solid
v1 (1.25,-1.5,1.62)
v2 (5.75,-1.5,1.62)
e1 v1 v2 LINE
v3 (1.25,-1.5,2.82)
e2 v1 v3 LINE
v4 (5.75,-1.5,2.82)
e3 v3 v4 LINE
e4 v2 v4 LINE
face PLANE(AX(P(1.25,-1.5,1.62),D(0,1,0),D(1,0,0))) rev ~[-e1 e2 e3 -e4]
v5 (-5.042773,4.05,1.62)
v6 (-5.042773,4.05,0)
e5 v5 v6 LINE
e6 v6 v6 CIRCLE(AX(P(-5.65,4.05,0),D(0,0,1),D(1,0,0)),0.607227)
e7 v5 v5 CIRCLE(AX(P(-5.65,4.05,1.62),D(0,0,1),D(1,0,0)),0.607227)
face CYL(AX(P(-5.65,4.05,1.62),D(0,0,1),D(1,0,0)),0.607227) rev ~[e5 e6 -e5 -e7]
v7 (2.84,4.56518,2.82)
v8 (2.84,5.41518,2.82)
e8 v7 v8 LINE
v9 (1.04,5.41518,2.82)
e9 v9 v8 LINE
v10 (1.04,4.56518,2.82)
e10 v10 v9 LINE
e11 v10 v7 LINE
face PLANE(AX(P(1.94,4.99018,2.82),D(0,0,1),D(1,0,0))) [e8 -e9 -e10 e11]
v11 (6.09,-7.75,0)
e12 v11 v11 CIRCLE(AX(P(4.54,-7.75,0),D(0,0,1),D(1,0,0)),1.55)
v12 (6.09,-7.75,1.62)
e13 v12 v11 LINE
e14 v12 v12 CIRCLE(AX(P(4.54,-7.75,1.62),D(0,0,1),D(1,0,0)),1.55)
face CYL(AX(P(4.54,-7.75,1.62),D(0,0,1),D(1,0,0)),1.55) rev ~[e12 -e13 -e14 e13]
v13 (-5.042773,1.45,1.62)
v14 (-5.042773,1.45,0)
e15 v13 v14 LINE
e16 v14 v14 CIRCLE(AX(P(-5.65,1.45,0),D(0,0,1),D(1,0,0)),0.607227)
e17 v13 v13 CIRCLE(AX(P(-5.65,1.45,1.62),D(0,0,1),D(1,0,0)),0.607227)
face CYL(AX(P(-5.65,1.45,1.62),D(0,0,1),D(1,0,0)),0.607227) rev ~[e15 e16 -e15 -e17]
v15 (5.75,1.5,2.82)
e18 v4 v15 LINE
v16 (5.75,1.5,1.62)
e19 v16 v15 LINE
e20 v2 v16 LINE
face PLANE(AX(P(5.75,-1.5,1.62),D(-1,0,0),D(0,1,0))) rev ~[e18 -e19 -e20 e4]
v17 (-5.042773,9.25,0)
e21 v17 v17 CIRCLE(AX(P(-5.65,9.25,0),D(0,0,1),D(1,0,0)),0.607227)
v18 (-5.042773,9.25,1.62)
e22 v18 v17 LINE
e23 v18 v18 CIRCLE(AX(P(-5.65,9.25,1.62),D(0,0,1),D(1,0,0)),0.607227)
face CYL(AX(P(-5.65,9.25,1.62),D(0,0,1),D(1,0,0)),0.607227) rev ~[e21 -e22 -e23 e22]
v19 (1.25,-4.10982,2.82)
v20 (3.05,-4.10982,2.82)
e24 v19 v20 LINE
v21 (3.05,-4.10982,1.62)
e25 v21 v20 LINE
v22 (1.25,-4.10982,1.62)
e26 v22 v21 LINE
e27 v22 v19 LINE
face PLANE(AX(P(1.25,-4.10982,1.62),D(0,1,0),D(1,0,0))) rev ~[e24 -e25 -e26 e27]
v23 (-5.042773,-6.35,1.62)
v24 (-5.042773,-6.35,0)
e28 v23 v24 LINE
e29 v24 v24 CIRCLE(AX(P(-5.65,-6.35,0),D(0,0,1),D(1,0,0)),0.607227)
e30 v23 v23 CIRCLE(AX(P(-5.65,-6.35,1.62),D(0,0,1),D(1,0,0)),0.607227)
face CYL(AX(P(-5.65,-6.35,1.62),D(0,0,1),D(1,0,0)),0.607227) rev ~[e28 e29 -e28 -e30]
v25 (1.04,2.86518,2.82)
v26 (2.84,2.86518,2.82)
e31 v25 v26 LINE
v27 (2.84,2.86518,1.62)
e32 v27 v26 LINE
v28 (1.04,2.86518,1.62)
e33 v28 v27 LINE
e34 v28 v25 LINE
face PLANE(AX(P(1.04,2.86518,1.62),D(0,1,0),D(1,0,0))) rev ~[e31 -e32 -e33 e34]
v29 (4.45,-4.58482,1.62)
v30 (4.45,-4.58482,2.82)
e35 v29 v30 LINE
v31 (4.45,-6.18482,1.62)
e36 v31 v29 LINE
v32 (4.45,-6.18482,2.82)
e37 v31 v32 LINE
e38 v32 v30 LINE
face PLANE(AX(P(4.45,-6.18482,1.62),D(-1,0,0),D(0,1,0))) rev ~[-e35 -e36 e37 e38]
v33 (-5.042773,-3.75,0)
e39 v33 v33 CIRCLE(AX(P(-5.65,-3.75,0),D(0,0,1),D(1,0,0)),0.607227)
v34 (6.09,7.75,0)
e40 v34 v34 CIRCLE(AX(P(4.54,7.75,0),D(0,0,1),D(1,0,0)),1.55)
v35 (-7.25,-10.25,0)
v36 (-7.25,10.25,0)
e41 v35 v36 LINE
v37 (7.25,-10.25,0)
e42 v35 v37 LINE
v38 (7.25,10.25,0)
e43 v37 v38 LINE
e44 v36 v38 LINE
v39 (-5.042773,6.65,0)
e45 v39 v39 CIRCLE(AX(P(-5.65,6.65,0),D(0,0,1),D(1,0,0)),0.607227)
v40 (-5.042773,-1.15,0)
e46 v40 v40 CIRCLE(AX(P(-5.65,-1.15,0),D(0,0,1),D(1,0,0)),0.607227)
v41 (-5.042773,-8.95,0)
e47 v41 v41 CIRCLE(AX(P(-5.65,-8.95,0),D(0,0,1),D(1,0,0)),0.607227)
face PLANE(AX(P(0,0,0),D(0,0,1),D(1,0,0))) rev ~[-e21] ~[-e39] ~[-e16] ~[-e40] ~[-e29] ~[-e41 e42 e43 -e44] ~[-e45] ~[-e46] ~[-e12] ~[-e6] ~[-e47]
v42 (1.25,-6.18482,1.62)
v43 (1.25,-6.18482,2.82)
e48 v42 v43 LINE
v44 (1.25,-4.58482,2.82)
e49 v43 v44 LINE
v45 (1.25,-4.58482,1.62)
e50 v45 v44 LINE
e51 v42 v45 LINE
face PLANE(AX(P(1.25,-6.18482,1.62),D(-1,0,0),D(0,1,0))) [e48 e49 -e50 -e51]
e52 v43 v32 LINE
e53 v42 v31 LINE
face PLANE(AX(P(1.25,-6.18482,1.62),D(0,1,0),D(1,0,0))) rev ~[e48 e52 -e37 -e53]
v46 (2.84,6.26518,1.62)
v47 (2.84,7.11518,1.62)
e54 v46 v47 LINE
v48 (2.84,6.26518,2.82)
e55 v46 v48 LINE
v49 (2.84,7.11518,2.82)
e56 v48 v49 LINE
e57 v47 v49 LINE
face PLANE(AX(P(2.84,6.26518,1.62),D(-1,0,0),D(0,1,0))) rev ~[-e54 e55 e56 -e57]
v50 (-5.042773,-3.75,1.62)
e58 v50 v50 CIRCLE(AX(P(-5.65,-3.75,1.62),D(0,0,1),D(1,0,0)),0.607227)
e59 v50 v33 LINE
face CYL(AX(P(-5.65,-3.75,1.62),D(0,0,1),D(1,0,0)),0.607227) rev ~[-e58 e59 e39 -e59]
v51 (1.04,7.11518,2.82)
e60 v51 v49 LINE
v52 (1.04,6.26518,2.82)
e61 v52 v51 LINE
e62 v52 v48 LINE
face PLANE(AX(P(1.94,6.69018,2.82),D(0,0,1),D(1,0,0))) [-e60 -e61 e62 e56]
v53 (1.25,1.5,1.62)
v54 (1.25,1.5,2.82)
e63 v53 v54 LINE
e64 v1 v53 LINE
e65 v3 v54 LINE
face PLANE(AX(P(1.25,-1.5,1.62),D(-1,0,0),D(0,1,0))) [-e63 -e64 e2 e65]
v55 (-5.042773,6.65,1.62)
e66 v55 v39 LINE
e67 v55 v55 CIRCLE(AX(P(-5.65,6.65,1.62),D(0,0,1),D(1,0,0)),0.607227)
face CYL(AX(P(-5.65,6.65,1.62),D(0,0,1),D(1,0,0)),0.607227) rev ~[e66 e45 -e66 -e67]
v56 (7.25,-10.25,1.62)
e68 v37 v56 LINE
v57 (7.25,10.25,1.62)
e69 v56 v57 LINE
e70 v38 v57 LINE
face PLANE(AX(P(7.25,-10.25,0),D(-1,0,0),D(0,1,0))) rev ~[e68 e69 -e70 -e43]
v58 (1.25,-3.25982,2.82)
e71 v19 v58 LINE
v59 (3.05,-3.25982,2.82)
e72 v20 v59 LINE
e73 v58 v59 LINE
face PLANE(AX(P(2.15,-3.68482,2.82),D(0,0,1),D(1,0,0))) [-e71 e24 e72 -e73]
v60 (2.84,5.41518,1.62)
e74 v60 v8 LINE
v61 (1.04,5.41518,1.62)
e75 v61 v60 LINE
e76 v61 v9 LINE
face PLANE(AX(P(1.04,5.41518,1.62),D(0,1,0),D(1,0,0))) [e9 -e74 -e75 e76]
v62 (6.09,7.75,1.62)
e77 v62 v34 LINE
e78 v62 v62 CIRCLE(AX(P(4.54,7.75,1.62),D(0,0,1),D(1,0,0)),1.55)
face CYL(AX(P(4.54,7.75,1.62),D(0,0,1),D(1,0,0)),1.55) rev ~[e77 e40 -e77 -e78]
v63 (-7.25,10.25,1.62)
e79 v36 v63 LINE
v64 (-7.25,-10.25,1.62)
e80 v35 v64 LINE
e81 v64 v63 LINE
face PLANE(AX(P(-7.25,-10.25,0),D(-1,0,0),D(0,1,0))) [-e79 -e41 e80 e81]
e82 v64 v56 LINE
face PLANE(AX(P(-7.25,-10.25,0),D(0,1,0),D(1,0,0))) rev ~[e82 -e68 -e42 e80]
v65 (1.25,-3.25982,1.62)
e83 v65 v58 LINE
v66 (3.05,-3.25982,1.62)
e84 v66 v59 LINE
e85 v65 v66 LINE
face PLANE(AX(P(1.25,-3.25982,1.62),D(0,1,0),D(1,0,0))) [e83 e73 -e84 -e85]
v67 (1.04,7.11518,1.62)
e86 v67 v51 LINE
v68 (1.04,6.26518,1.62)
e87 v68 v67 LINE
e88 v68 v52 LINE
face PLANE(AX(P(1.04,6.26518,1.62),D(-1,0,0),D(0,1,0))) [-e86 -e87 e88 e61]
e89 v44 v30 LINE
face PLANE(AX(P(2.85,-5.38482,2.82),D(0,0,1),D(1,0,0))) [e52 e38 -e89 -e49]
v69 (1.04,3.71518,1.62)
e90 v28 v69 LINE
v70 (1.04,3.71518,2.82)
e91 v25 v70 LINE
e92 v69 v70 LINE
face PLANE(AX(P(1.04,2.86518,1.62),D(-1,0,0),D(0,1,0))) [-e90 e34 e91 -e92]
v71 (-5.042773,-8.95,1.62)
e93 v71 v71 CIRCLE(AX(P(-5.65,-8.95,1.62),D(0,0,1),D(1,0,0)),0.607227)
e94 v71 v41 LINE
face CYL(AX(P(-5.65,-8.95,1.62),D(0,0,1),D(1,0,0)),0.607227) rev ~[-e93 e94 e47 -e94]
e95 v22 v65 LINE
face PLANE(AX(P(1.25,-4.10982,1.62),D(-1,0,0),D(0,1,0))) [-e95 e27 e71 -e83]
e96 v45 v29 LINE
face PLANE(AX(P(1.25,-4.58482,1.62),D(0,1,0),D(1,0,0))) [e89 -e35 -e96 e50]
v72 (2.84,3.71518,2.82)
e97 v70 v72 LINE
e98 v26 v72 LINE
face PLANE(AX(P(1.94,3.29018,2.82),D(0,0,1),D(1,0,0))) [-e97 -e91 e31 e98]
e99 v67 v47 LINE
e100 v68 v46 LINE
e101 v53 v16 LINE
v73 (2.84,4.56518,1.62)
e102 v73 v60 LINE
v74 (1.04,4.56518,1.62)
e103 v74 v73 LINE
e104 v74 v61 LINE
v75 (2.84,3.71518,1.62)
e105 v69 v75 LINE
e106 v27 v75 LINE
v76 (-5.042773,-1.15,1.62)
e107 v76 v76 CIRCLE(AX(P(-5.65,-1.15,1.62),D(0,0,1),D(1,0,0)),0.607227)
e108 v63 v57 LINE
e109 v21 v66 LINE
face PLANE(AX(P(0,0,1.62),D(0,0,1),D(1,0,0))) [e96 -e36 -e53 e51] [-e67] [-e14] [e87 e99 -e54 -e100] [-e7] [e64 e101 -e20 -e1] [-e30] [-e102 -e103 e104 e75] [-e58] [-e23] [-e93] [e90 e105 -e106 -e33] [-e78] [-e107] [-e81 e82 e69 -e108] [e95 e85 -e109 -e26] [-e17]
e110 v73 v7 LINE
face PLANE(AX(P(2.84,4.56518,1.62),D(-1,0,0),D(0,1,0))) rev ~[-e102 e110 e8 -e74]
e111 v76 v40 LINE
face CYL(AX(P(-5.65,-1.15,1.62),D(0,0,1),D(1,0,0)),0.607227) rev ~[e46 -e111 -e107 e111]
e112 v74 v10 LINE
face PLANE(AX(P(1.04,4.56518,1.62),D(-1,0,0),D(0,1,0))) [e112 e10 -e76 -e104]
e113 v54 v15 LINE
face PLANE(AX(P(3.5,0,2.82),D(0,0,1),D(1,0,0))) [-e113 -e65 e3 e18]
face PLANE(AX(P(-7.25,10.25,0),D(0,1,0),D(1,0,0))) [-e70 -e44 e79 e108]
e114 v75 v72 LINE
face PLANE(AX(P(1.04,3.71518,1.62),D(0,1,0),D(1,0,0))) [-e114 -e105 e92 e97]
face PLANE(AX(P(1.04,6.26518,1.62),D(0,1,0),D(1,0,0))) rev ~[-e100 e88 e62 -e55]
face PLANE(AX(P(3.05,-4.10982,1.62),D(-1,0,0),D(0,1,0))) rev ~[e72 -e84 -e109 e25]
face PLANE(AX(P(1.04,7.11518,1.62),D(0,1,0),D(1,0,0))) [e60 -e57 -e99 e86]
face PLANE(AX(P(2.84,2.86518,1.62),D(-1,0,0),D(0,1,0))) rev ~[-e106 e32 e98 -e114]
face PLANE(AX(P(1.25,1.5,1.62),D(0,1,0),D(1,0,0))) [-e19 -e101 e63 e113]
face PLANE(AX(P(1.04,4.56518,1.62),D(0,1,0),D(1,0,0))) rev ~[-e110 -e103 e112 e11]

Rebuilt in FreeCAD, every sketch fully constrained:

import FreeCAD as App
import Part
import Sketcher
from FreeCAD import Vector

doc = App.newDocument("Part")
body = doc.addObject("PartDesign::Body", "Body")

# Sketch on XY plane
sketch1 = doc.addObject("Sketcher::SketchObject", "Sketch")
body.addObject(sketch1)
sketch1.AttachmentSupport = (doc.XY_Plane, [""])
sketch1.MapMode = "FlatFace"
sketch1.addGeometry(Part.LineSegment(Vector(-7, 10, 0), Vector(-7, -10, 0)), False)
sketch1.addGeometry(Part.LineSegment(Vector(-7, -10, 0), Vector(7, -10, 0)), False)
sketch1.addGeometry(Part.LineSegment(Vector(7, -10, 0), Vector(7, 10, 0)), False)
sketch1.addGeometry(Part.LineSegment(Vector(7, 10, 0), Vector(-7, 10, 0)), False)
sketch1.addConstraint(Sketcher.Constraint("Coincident", 0, 2, 1, 1))
sketch1.addConstraint(Sketcher.Constraint("Coincident", 1, 2, 2, 1))
sketch1.addConstraint(Sketcher.Constraint("Coincident", 2, 2, 3, 1))
sketch1.addConstraint(Sketcher.Constraint("Coincident", 3, 2, 0, 1))
sketch1.addConstraint(Sketcher.Constraint("Vertical", 0))
sketch1.addConstraint(Sketcher.Constraint("Horizontal", 1))
sketch1.addConstraint(Sketcher.Constraint("Vertical", 2))
sketch1.addConstraint(Sketcher.Constraint("Horizontal", 3))
sketch1.addConstraint(Sketcher.Constraint("Symmetric", 0, 2, 2, 2, -1, 1))
sketch1.addConstraint(Sketcher.Constraint("DistanceX", 1, 1, 1, 2, 14.5))
sketch1.addConstraint(Sketcher.Constraint("DistanceY", 0, 2, 0, 1, 20.5))
pad1 = doc.addObject("PartDesign::Pad", "Pad")
body.addObject(pad1)
pad1.Profile = sketch1
pad1.Length = 1.62

# Sketch on XY plane
sketch2 = doc.addObject("Sketcher::SketchObject", "Sketch001")
body.addObject(sketch2)
sketch2.AttachmentSupport = (doc.XY_Plane, [""])
sketch2.MapMode = "FlatFace"
sketch2.AttachmentOffset = App.Placement(Vector(0, 0, 1.62), App.Rotation())
sketch2.addGeometry(Part.Circle(Vector(4.5, 7.8, 0), Vector(0, 0, 1), 1.6), False)
sketch2.addGeometry(Part.Circle(Vector(4.5, -7.8, 0), Vector(0, 0, 1), 1.6), False)
sketch2.addConstraint(Sketcher.Constraint("Equal", 0, 1))
sketch2.addConstraint(Sketcher.Constraint("Symmetric", 0, 3, 1, 3, -1))
sketch2.addConstraint(Sketcher.Constraint("Diameter", 0, 3.1))
sketch2.addConstraint(Sketcher.Constraint("DistanceY", 1, 3, 0, 3, 15.5))
sketch2.addConstraint(Sketcher.Constraint("DistanceX", -1, 1, 0, 3, 4.54))
pocket1 = doc.addObject("PartDesign::Pocket", "Pocket")
body.addObject(pocket1)
pocket1.Profile = sketch2
pocket1.Length = 1.62

# Sketch on XY plane
sketch3 = doc.addObject("Sketcher::SketchObject", "Sketch002")
body.addObject(sketch3)
sketch3.AttachmentSupport = (doc.XY_Plane, [""])
sketch3.MapMode = "FlatFace"
sketch3.AttachmentOffset = App.Placement(Vector(0, 0, 1.62), App.Rotation())
sketch3.addGeometry(Part.LineSegment(Vector(1, 7.1, 0), Vector(1, 6.3, 0)), False)
sketch3.addGeometry(Part.LineSegment(Vector(1, 6.3, 0), Vector(2.8, 6.3, 0)), False)
sketch3.addGeometry(Part.LineSegment(Vector(2.8, 6.3, 0), Vector(2.8, 7.1, 0)), False)
sketch3.addGeometry(Part.LineSegment(Vector(2.8, 7.1, 0), Vector(1, 7.1, 0)), False)
sketch3.addGeometry(Part.LineSegment(Vector(1, 5.4, 0), Vector(1, 4.6, 0)), False)
sketch3.addGeometry(Part.LineSegment(Vector(1, 4.6, 0), Vector(2.8, 4.6, 0)), False)
sketch3.addGeometry(Part.LineSegment(Vector(2.8, 4.6, 0), Vector(2.8, 5.4, 0)), False)
sketch3.addGeometry(Part.LineSegment(Vector(2.8, 5.4, 0), Vector(1, 5.4, 0)), False)
sketch3.addGeometry(Part.LineSegment(Vector(1, 3.7, 0), Vector(1, 2.9, 0)), False)
sketch3.addGeometry(Part.LineSegment(Vector(1, 2.9, 0), Vector(2.8, 2.9, 0)), False)
sketch3.addGeometry(Part.LineSegment(Vector(2.8, 2.9, 0), Vector(2.8, 3.7, 0)), False)
sketch3.addGeometry(Part.LineSegment(Vector(2.8, 3.7, 0), Vector(1, 3.7, 0)), False)
sketch3.addGeometry(Part.LineSegment(Vector(1.2, 1.5, 0), Vector(1.2, -1.5, 0)), False)
sketch3.addGeometry(Part.LineSegment(Vector(1.2, -1.5, 0), Vector(5.8, -1.5, 0)), False)
sketch3.addGeometry(Part.LineSegment(Vector(5.8, -1.5, 0), Vector(5.8, 1.5, 0)), False)
sketch3.addGeometry(Part.LineSegment(Vector(5.8, 1.5, 0), Vector(1.2, 1.5, 0)), False)
sketch3.addGeometry(Part.LineSegment(Vector(1.2, -3.3, 0), Vector(1.2, -4.1, 0)), False)
sketch3.addGeometry(Part.LineSegment(Vector(1.2, -4.1, 0), Vector(3, -4.1, 0)), False)
sketch3.addGeometry(Part.LineSegment(Vector(3, -4.1, 0), Vector(3, -3.3, 0)), False)
sketch3.addGeometry(Part.LineSegment(Vector(3, -3.3, 0), Vector(1.2, -3.3, 0)), False)
sketch3.addGeometry(Part.LineSegment(Vector(1.2, -4.6, 0), Vector(1.2, -6.2, 0)), False)
sketch3.addGeometry(Part.LineSegment(Vector(1.2, -6.2, 0), Vector(4.5, -6.2, 0)), False)
sketch3.addGeometry(Part.LineSegment(Vector(4.5, -6.2, 0), Vector(4.5, -4.6, 0)), False)
sketch3.addGeometry(Part.LineSegment(Vector(4.5, -4.6, 0), Vector(1.2, -4.6, 0)), False)
sketch3.addConstraint(Sketcher.Constraint("Coincident", 0, 2, 1, 1))
sketch3.addConstraint(Sketcher.Constraint("Coincident", 1, 2, 2, 1))
sketch3.addConstraint(Sketcher.Constraint("Coincident", 2, 2, 3, 1))
sketch3.addConstraint(Sketcher.Constraint("Coincident", 3, 2, 0, 1))
sketch3.addConstraint(Sketcher.Constraint("Coincident", 4, 2, 5, 1))
sketch3.addConstraint(Sketcher.Constraint("Coincident", 5, 2, 6, 1))
sketch3.addConstraint(Sketcher.Constraint("Coincident", 6, 2, 7, 1))
sketch3.addConstraint(Sketcher.Constraint("Coincident", 7, 2, 4, 1))
sketch3.addConstraint(Sketcher.Constraint("Coincident", 8, 2, 9, 1))
sketch3.addConstraint(Sketcher.Constraint("Coincident", 9, 2, 10, 1))
sketch3.addConstraint(Sketcher.Constraint("Coincident", 10, 2, 11, 1))
sketch3.addConstraint(Sketcher.Constraint("Coincident", 11, 2, 8, 1))
sketch3.addConstraint(Sketcher.Constraint("Coincident", 12, 2, 13, 1))
sketch3.addConstraint(Sketcher.Constraint("Coincident", 13, 2, 14, 1))
sketch3.addConstraint(Sketcher.Constraint("Coincident", 14, 2, 15, 1))
sketch3.addConstraint(Sketcher.Constraint("Coincident", 15, 2, 12, 1))
sketch3.addConstraint(Sketcher.Constraint("Coincident", 16, 2, 17, 1))
sketch3.addConstraint(Sketcher.Constraint("Coincident", 17, 2, 18, 1))
sketch3.addConstraint(Sketcher.Constraint("Coincident", 18, 2, 19, 1))
sketch3.addConstraint(Sketcher.Constraint("Coincident", 19, 2, 16, 1))
sketch3.addConstraint(Sketcher.Constraint("Coincident", 20, 2, 21, 1))
sketch3.addConstraint(Sketcher.Constraint("Coincident", 21, 2, 22, 1))
sketch3.addConstraint(Sketcher.Constraint("Coincident", 22, 2, 23, 1))
sketch3.addConstraint(Sketcher.Constraint("Coincident", 23, 2, 20, 1))
sketch3.addConstraint(Sketcher.Constraint("Vertical", 0))
sketch3.addConstraint(Sketcher.Constraint("Horizontal", 1))
sketch3.addConstraint(Sketcher.Constraint("Vertical", 2))
sketch3.addConstraint(Sketcher.Constraint("Horizontal", 3))
sketch3.addConstraint(Sketcher.Constraint("Vertical", 4))
sketch3.addConstraint(Sketcher.Constraint("Horizontal", 5))
sketch3.addConstraint(Sketcher.Constraint("Vertical", 6))
sketch3.addConstraint(Sketcher.Constraint("Horizontal", 7))
sketch3.addConstraint(Sketcher.Constraint("Vertical", 8))
sketch3.addConstraint(Sketcher.Constraint("Horizontal", 9))
sketch3.addConstraint(Sketcher.Constraint("Vertical", 10))
sketch3.addConstraint(Sketcher.Constraint("Horizontal", 11))
sketch3.addConstraint(Sketcher.Constraint("Vertical", 12))
sketch3.addConstraint(Sketcher.Constraint("Horizontal", 13))
sketch3.addConstraint(Sketcher.Constraint("Vertical", 14))
sketch3.addConstraint(Sketcher.Constraint("Horizontal", 15))
sketch3.addConstraint(Sketcher.Constraint("Vertical", 16))
sketch3.addConstraint(Sketcher.Constraint("Horizontal", 17))
sketch3.addConstraint(Sketcher.Constraint("Vertical", 18))
sketch3.addConstraint(Sketcher.Constraint("Horizontal", 19))
sketch3.addConstraint(Sketcher.Constraint("Vertical", 20))
sketch3.addConstraint(Sketcher.Constraint("Horizontal", 21))
sketch3.addConstraint(Sketcher.Constraint("Vertical", 22))
sketch3.addConstraint(Sketcher.Constraint("Horizontal", 23))
sketch3.addConstraint(Sketcher.Constraint("Vertical", 3, 2, 4, 2))
sketch3.addConstraint(Sketcher.Constraint("Vertical", 2, 2, 5, 2))
sketch3.addConstraint(Sketcher.Constraint("Vertical", 7, 2, 8, 2))
sketch3.addConstraint(Sketcher.Constraint("Vertical", 6, 2, 9, 2))
sketch3.addConstraint(Sketcher.Constraint("Vertical", 15, 2, 16, 2))
sketch3.addConstraint(Sketcher.Constraint("Vertical", 19, 2, 20, 2))
sketch3.addConstraint(Sketcher.Constraint("Equal", 11, 17))
sketch3.addConstraint(Sketcher.Constraint("Equal", 2, 4))
sketch3.addConstraint(Sketcher.Constraint("Equal", 6, 8))
sketch3.addConstraint(Sketcher.Constraint("Equal", 10, 16))
sketch3.addConstraint(Sketcher.Constraint("DistanceY", 12, 2, 12, 1, 3.0))
sketch3.addConstraint(Sketcher.Constraint("DistanceX", 1, 1, 1, 2, 1.8))
sketch3.addConstraint(Sketcher.Constraint("DistanceX", 13, 1, 13, 2, 4.5))
sketch3.addConstraint(Sketcher.Constraint("DistanceX", 21, 1, 21, 2, 3.2))
sketch3.addConstraint(Sketcher.Constraint("DistanceY", 20, 2, 20, 1, 1.6))
sketch3.addConstraint(Sketcher.Constraint("DistanceY", 0, 2, 0, 1, 0.85))
sketch3.addConstraint(Sketcher.Constraint("DistanceY", 12, 2, -1, 1, 1.5))
sketch3.addConstraint(Sketcher.Constraint("DistanceY", 4, 2, 0, 2, 1.7))
sketch3.addConstraint(Sketcher.Constraint("DistanceY", 8, 2, 4, 2, 1.7))
sketch3.addConstraint(Sketcher.Constraint("DistanceX", -1, 1, 0, 2, 1.04))
sketch3.addConstraint(Sketcher.Constraint("DistanceX", -1, 1, 12, 2, 1.25))
sketch3.addConstraint(Sketcher.Constraint("DistanceY", 16, 2, 8, 2, 6.975))
sketch3.addConstraint(Sketcher.Constraint("DistanceY", 20, 2, 16, 2, 2.075))
sketch3.addConstraint(Sketcher.Constraint("DistanceY", -1, 1, 0, 2, 6.26518))
pad2 = doc.addObject("PartDesign::Pad", "Pad001")
body.addObject(pad2)
pad2.Profile = sketch3
pad2.Length = 1.2

# Sketch on XY plane
sketch4 = doc.addObject("Sketcher::SketchObject", "Sketch003")
body.addObject(sketch4)
sketch4.AttachmentSupport = (doc.XY_Plane, [""])
sketch4.MapMode = "FlatFace"
sketch4.AttachmentOffset = App.Placement(Vector(0, 0, 1.62), App.Rotation())
sketch4.addGeometry(Part.Circle(Vector(-5.7, 9.2, 0), Vector(0, 0, 1), 0.6), False)
sketch4.addGeometry(Part.Circle(Vector(-5.7, 6.7, 0), Vector(0, 0, 1), 0.6), False)
sketch4.addGeometry(Part.Circle(Vector(-5.7, 4, 0), Vector(0, 0, 1), 0.6), False)
sketch4.addGeometry(Part.Circle(Vector(-5.7, 1.4, 0), Vector(0, 0, 1), 0.6), False)
sketch4.addGeometry(Part.Circle(Vector(-5.7, -1.1, 0), Vector(0, 0, 1), 0.6), False)
sketch4.addGeometry(Part.Circle(Vector(-5.7, -3.8, 0), Vector(0, 0, 1), 0.6), False)
sketch4.addGeometry(Part.Circle(Vector(-5.7, -6.3, 0), Vector(0, 0, 1), 0.6), False)
sketch4.addGeometry(Part.Circle(Vector(-5.7, -8.9, 0), Vector(0, 0, 1), 0.6), False)
sketch4.addGeometry(Part.Circle(Vector(-5.7, -11.6, 0), Vector(0, 0, 1), 0.6), False)
sketch4.addGeometry(Part.Circle(Vector(-5.7, -14.2, 0), Vector(0, 0, 1), 0.6), False)
sketch4.addConstraint(Sketcher.Constraint("Equal", 0, 1))
sketch4.addConstraint(Sketcher.Constraint("Equal", 1, 2))
sketch4.addConstraint(Sketcher.Constraint("Equal", 2, 3))
sketch4.addConstraint(Sketcher.Constraint("Equal", 3, 4))
sketch4.addConstraint(Sketcher.Constraint("Equal", 4, 5))
sketch4.addConstraint(Sketcher.Constraint("Equal", 5, 6))
sketch4.addConstraint(Sketcher.Constraint("Equal", 6, 7))
sketch4.addConstraint(Sketcher.Constraint("Equal", 7, 8))
sketch4.addConstraint(Sketcher.Constraint("Equal", 8, 9))
sketch4.addConstraint(Sketcher.Constraint("Vertical", 0, 3, 1, 3))
sketch4.addConstraint(Sketcher.Constraint("Vertical", 1, 3, 2, 3))
sketch4.addConstraint(Sketcher.Constraint("Vertical", 2, 3, 3, 3))
sketch4.addConstraint(Sketcher.Constraint("Vertical", 3, 3, 4, 3))
sketch4.addConstraint(Sketcher.Constraint("Vertical", 4, 3, 5, 3))
sketch4.addConstraint(Sketcher.Constraint("Vertical", 5, 3, 6, 3))
sketch4.addConstraint(Sketcher.Constraint("Vertical", 6, 3, 7, 3))
sketch4.addConstraint(Sketcher.Constraint("Vertical", 7, 3, 8, 3))
sketch4.addConstraint(Sketcher.Constraint("Vertical", 8, 3, 9, 3))
sketch4.addConstraint(Sketcher.Constraint("DistanceY", 5, 3, 0, 3, 13.0))
sketch4.addConstraint(Sketcher.Constraint("DistanceY", 6, 3, 1, 3, 13.0))
sketch4.addConstraint(Sketcher.Constraint("DistanceY", 7, 3, 2, 3, 13.0))
sketch4.addConstraint(Sketcher.Constraint("DistanceY", 8, 3, 3, 3, 13.0))
sketch4.addConstraint(Sketcher.Constraint("DistanceY", 9, 3, 4, 3, 13.0))
sketch4.addConstraint(Sketcher.Constraint("DistanceY", 1, 3, 0, 3, 2.6))
sketch4.addConstraint(Sketcher.Constraint("DistanceY", 2, 3, 1, 3, 2.6))
sketch4.addConstraint(Sketcher.Constraint("DistanceY", 3, 3, 2, 3, 2.6))
sketch4.addConstraint(Sketcher.Constraint("DistanceY", 4, 3, 3, 3, 2.6))
sketch4.addConstraint(Sketcher.Constraint("DistanceX", 0, 3, -1, 1, 5.65))
sketch4.addConstraint(Sketcher.Constraint("DistanceY", -1, 1, 0, 3, 9.25))
sketch4.addConstraint(Sketcher.Constraint("Diameter", 0, 1.214454))
pocket2 = doc.addObject("PartDesign::Pocket", "Pocket001")
body.addObject(pocket2)
pocket2.Profile = sketch4
pocket2.Type = "ThroughAll"

doc.recompute()
